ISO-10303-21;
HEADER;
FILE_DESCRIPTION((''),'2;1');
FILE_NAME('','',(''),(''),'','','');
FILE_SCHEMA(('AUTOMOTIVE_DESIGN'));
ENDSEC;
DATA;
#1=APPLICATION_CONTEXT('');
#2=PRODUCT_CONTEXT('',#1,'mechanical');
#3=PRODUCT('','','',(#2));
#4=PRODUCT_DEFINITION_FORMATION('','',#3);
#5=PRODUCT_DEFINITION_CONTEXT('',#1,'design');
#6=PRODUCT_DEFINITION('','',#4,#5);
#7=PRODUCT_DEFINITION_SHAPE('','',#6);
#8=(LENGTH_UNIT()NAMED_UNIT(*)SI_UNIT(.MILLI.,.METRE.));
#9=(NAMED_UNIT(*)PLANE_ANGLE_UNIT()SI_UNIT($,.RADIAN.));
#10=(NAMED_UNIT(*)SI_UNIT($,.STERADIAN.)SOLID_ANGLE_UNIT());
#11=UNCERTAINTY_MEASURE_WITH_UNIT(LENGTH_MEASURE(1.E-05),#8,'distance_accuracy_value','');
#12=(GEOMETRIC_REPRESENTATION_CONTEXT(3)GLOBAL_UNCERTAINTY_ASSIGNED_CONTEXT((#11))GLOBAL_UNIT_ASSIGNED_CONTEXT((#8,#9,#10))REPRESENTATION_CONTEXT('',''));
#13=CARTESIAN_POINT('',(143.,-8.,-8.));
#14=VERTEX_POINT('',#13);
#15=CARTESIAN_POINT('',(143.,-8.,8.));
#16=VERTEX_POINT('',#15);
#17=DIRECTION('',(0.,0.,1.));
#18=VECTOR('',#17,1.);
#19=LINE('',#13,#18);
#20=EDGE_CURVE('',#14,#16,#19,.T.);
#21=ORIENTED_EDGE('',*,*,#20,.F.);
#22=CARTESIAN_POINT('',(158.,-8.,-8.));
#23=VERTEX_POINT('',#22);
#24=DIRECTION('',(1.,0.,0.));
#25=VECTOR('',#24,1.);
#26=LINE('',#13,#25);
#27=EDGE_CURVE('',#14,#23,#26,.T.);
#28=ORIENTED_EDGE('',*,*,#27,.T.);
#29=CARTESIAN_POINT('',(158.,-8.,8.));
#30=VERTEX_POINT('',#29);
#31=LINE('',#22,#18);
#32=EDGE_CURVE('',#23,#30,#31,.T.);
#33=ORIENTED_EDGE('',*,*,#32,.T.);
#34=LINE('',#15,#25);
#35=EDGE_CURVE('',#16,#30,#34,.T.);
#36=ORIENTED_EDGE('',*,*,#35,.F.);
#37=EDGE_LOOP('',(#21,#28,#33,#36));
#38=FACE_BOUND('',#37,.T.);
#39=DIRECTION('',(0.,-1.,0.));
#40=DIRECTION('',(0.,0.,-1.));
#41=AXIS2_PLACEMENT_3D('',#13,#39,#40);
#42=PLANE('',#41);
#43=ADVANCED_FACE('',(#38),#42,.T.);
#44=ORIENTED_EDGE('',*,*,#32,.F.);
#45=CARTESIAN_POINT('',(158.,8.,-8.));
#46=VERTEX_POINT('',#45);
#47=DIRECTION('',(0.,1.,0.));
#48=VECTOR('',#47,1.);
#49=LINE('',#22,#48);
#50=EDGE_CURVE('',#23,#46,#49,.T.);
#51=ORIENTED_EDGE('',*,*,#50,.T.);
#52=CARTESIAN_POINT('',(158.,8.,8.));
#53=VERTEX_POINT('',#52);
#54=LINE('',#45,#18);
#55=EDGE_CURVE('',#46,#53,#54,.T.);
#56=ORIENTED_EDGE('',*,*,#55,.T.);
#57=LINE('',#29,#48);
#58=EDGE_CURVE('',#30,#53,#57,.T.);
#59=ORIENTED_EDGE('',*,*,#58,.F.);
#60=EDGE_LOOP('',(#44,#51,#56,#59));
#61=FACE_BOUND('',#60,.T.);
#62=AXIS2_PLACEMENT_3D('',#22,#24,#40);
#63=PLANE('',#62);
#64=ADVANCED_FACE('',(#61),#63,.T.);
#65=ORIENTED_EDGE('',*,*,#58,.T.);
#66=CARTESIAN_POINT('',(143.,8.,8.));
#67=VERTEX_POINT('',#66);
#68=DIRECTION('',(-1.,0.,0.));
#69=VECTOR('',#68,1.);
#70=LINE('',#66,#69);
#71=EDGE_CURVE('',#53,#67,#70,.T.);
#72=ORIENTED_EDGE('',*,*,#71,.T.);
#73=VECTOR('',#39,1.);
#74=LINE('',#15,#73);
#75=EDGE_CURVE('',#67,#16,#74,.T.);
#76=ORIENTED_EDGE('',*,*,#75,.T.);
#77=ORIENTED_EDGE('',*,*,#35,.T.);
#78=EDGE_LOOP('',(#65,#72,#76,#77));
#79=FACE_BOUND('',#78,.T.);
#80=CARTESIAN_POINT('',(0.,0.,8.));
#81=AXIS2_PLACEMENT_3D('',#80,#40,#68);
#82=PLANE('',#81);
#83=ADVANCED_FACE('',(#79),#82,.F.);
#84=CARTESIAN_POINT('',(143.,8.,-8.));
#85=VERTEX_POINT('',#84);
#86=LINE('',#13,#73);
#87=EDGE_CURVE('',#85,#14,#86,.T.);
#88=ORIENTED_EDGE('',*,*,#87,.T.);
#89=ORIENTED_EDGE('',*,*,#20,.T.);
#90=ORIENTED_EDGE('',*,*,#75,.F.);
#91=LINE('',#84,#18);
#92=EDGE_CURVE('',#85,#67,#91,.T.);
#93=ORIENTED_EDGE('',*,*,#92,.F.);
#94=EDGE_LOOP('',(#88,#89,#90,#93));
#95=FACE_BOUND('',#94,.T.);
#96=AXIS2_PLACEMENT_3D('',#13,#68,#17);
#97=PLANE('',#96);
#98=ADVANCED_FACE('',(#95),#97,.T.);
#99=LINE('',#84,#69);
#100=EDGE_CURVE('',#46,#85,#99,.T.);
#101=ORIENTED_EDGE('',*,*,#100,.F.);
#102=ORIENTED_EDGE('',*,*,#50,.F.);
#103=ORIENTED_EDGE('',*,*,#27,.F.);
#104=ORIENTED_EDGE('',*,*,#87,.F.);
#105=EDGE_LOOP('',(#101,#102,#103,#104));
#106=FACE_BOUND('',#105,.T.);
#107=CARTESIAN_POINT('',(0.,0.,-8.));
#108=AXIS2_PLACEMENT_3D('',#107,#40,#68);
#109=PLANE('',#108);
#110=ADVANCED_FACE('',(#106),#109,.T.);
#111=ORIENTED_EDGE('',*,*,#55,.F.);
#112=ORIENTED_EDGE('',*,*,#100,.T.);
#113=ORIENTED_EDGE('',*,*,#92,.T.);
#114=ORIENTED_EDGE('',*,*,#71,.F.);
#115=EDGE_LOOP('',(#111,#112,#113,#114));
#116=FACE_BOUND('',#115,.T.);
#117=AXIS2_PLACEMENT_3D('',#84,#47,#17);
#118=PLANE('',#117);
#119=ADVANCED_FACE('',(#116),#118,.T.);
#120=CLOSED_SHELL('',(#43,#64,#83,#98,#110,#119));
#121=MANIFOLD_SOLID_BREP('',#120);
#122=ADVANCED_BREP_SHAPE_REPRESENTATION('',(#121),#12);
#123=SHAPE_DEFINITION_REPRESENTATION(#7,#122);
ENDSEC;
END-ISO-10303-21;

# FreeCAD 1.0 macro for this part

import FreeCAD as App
import Part
import Sketcher
from FreeCAD import Vector

doc = App.newDocument("Part")
body = doc.addObject("PartDesign::Body", "Body")

sketch1 = body.newObject("Sketcher::SketchObject", "Sketch")
sketch1.AttachmentSupport = (doc.getObject("XY_Plane"), [""])
sketch1.MapMode = "FlatFace"
sketch1.AttachmentOffset = App.Placement(Vector(0, 0, 8), App.Rotation())
sketch1.addGeometry(Part.LineSegment(Vector(143, 8, 0), Vector(143, -8, 0)), False)
sketch1.addGeometry(Part.LineSegment(Vector(143, -8, 0), Vector(158, -8, 0)), False)
sketch1.addGeometry(Part.LineSegment(Vector(158, -8, 0), Vector(158, 8, 0)), False)
sketch1.addGeometry(Part.LineSegment(Vector(158, 8, 0), Vector(143, 8, 0)), False)
sketch1.addConstraint(Sketcher.Constraint("Coincident", 0, 2, 1, 1))
sketch1.addConstraint(Sketcher.Constraint("Coincident", 1, 2, 2, 1))
sketch1.addConstraint(Sketcher.Constraint("Coincident", 2, 2, 3, 1))
sketch1.addConstraint(Sketcher.Constraint("Coincident", 3, 2, 0, 1))
sketch1.addConstraint(Sketcher.Constraint("Vertical", 0))
sketch1.addConstraint(Sketcher.Constraint("Horizontal", 1))
sketch1.addConstraint(Sketcher.Constraint("Vertical", 2))
sketch1.addConstraint(Sketcher.Constraint("Horizontal", 3))
sketch1.addConstraint(Sketcher.Constraint("DistanceX", 1, 1, 1, 2, 15.0))
sketch1.addConstraint(Sketcher.Constraint("DistanceY", 0, 2, 0, 1, 16.0))
sketch1.addConstraint(Sketcher.Constraint("DistanceX", -1, 1, 0, 2, 143.0))
sketch1.addConstraint(Sketcher.Constraint("DistanceY", 0, 2, -1, 1, 8.0))
pad1 = body.newObject("PartDesign::Pad", "Pad")
pad1.Profile = sketch1
pad1.Length = 16
pad1.Reversed = True

doc.recompute()
